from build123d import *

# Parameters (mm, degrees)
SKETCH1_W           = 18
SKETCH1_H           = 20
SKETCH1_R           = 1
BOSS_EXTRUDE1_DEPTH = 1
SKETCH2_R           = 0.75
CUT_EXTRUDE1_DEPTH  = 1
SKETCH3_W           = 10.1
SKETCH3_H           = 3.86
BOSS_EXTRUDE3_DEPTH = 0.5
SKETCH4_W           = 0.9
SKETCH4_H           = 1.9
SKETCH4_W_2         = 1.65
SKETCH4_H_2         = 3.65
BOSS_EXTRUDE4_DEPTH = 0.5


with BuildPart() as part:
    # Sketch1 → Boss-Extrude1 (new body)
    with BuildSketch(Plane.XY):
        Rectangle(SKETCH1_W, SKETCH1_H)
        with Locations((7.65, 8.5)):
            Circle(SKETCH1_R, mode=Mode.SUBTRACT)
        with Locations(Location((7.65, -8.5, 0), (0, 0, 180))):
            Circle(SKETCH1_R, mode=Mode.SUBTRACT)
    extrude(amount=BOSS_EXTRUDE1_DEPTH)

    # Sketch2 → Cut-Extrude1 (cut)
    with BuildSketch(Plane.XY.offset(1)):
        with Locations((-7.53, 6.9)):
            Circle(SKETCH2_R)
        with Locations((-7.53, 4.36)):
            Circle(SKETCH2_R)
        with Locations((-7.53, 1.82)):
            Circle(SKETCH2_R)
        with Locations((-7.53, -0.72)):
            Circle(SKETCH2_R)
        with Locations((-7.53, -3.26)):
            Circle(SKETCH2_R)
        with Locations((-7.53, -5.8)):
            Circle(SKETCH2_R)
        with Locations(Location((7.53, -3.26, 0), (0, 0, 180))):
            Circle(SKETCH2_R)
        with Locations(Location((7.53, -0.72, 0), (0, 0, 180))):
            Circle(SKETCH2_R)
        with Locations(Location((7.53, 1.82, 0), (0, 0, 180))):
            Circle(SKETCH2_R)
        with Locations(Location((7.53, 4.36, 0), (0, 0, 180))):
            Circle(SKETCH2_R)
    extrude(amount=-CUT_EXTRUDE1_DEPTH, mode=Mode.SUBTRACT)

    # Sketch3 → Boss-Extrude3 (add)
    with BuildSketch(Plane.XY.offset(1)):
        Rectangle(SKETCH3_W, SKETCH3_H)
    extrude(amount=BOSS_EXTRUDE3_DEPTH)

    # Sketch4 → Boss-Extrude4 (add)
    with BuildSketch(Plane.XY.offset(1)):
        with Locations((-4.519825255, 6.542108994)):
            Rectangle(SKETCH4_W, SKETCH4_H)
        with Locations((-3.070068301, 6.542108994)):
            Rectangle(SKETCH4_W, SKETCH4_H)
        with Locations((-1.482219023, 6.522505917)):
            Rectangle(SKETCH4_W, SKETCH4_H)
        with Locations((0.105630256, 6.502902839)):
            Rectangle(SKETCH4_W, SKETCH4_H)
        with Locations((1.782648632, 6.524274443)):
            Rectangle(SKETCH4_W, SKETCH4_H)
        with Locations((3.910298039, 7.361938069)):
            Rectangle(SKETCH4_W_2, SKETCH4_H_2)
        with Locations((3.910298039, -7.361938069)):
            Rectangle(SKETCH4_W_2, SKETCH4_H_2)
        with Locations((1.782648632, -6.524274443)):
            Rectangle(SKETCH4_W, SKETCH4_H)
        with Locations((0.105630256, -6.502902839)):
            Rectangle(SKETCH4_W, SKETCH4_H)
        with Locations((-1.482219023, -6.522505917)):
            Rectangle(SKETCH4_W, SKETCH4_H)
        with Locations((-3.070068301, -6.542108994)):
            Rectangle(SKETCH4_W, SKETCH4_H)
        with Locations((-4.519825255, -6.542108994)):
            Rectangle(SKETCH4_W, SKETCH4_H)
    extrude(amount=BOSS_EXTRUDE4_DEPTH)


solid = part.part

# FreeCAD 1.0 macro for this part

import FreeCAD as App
import Part
import Sketcher

doc = App.newDocument("Part")
body = doc.addObject("PartDesign::Body", "Body")

# Sketch on XY plane
sketch1 = body.newObject("Sketcher::SketchObject", "Sketch")
sketch1.AttachmentSupport = (doc.getObject("XY_Plane"), [""])
sketch1.MapMode = "FlatFace"
sketch1.addGeometry(Part.LineSegment(App.Vector(-9, 10, 0), App.Vector(-9, -10, 0)), False)
sketch1.addGeometry(Part.LineSegment(App.Vector(-9, -10, 0), App.Vector(9, -10, 0)), False)
sketch1.addGeometry(Part.LineSegment(App.Vector(9, -10, 0), App.Vector(9, 10, 0)), False)
sketch1.addGeometry(Part.LineSegment(App.Vector(9, 10, 0), App.Vector(-9, 10, 0)), False)
sketch1.addGeometry(Part.Circle(App.Vector(7.7, -8.5, 0), App.Vector(0, 0, 1), 1), False)
sketch1.addGeometry(Part.Circle(App.Vector(7.7, 8.5, 0), App.Vector(0, 0, 1), 1), False)
sketch1.addConstraint(Sketcher.Constraint("Coincident", 0, 2, 1, 1))
sketch1.addConstraint(Sketcher.Constraint("Coincident", 1, 2, 2, 1))
sketch1.addConstraint(Sketcher.Constraint("Coincident", 2, 2, 3, 1))
sketch1.addConstraint(Sketcher.Constraint("Coincident", 3, 2, 0, 1))
sketch1.addConstraint(Sketcher.Constraint("Vertical", 0))
sketch1.addConstraint(Sketcher.Constraint("Horizontal", 1))
sketch1.addConstraint(Sketcher.Constraint("Vertical", 2))
sketch1.addConstraint(Sketcher.Constraint("Horizontal", 3))
sketch1.addConstraint(Sketcher.Constraint("Equal", 4, 5))
sketch1.addConstraint(Sketcher.Constraint("Symmetric", 0, 2, 2, 2, -1, 1))
sketch1.addConstraint(Sketcher.Constraint("Symmetric", 4, 3, 5, 3, -1))
sketch1.addConstraint(Sketcher.Constraint("Diameter", 4, 2.0))
sketch1.addConstraint(Sketcher.Constraint("DistanceX", 1, 1, 1, 2, 18.0))
sketch1.addConstraint(Sketcher.Constraint("DistanceY", 0, 2, 0, 1, 20.0))
sketch1.addConstraint(Sketcher.Constraint("DistanceY", 4, 3, 5, 3, 17.0))
sketch1.addConstraint(Sketcher.Constraint("DistanceX", -1, 1, 4, 3, 7.65))
pad1 = body.newObject("PartDesign::Pad", "Pad")
pad1.Profile = sketch1
pad1.Length = 1

# Sketch on XY plane
sketch2 = body.newObject("Sketcher::SketchObject", "Sketch001")
sketch2.AttachmentSupport = (doc.getObject("XY_Plane"), [""])
sketch2.MapMode = "FlatFace"
sketch2.AttachmentOffset = App.Placement(App.Vector(0, 0, 1), App.Rotation())
sketch2.addGeometry(Part.Circle(App.Vector(-7.5, 6.9, 0), App.Vector(0, 0, 1), 0.8), False)
sketch2.addGeometry(Part.Circle(App.Vector(-7.5, 4.4, 0), App.Vector(0, 0, 1), 0.8), False)
sketch2.addGeometry(Part.Circle(App.Vector(-7.5, 1.8, 0), App.Vector(0, 0, 1), 0.8), False)
sketch2.addGeometry(Part.Circle(App.Vector(-7.5, -0.7, 0), App.Vector(0, 0, 1), 0.8), False)
sketch2.addGeometry(Part.Circle(App.Vector(-7.5, -3.3, 0), App.Vector(0, 0, 1), 0.8), False)
sketch2.addGeometry(Part.Circle(App.Vector(-7.5, -5.8, 0), App.Vector(0, 0, 1), 0.8), False)
sketch2.addGeometry(Part.Circle(App.Vector(7.5, -3.3, 0), App.Vector(0, 0, 1), 0.8), False)
sketch2.addGeometry(Part.Circle(App.Vector(7.5, -0.7, 0), App.Vector(0, 0, 1), 0.8), False)
sketch2.addGeometry(Part.Circle(App.Vector(7.5, 1.8, 0), App.Vector(0, 0, 1), 0.8), False)
sketch2.addGeometry(Part.Circle(App.Vector(7.5, 4.4, 0), App.Vector(0, 0, 1), 0.8), False)
sketch2.addConstraint(Sketcher.Constraint("Equal", 0, 1))
sketch2.addConstraint(Sketcher.Constraint("Equal", 1, 2))
sketch2.addConstraint(Sketcher.Constraint("Equal", 2, 3))
sketch2.addConstraint(Sketcher.Constraint("Equal", 3, 4))
sketch2.addConstraint(Sketcher.Constraint("Equal", 4, 5))
sketch2.addConstraint(Sketcher.Constraint("Equal", 5, 6))
sketch2.addConstraint(Sketcher.Constraint("Equal", 6, 7))
sketch2.addConstraint(Sketcher.Constraint("Equal", 7, 8))
sketch2.addConstraint(Sketcher.Constraint("Equal", 8, 9))
sketch2.addConstraint(Sketcher.Constraint("Symmetric", 4, 3, 6, 3, -2))
sketch2.addConstraint(Sketcher.Constraint("Symmetric", 3, 3, 7, 3, -2))
sketch2.addConstraint(Sketcher.Constraint("Symmetric", 2, 3, 8, 3, -2))
sketch2.addConstraint(Sketcher.Constraint("Symmetric", 1, 3, 9, 3, -2))
sketch2.addConstraint(Sketcher.Constraint("Vertical", 0, 3, 1, 3))
sketch2.addConstraint(Sketcher.Constraint("Vertical", 1, 3, 2, 3))
sketch2.addConstraint(Sketcher.Constraint("Vertical", 2, 3, 3, 3))
sketch2.addConstraint(Sketcher.Constraint("Vertical", 3, 3, 4, 3))
sketch2.addConstraint(Sketcher.Constraint("Vertical", 4, 3, 5, 3))
sketch2.addConstraint(Sketcher.Constraint("Diameter", 0, 1.5))
sketch2.addConstraint(Sketcher.Constraint("DistanceY", -1, 1, 0, 3, 6.9))
sketch2.addConstraint(Sketcher.Constraint("DistanceY", 5, 3, -1, 1, 5.8))
sketch2.addConstraint(Sketcher.Constraint("DistanceX", 0, 3, -1, 1, 7.53))
sketch2.addConstraint(Sketcher.Constraint("DistanceY", -1, 1, 1, 3, 4.36))
sketch2.addConstraint(Sketcher.Constraint("DistanceY", -1, 1, 2, 3, 1.82))
sketch2.addConstraint(Sketcher.Constraint("DistanceY", 3, 3, -1, 1, 0.72))
sketch2.addConstraint(Sketcher.Constraint("DistanceY", 4, 3, -1, 1, 3.26))
pocket1 = body.newObject("PartDesign::Pocket", "Pocket")
pocket1.Profile = sketch2
pocket1.Length = 1

# Sketch on XY plane
sketch3 = body.newObject("Sketcher::SketchObject", "Sketch002")
sketch3.AttachmentSupport = (doc.getObject("XY_Plane"), [""])
sketch3.MapMode = "FlatFace"
sketch3.AttachmentOffset = App.Placement(App.Vector(0, 0, 1), App.Rotation())
sketch3.addGeometry(Part.LineSegment(App.Vector(-5, 1.9, 0), App.Vector(-5, -1.9, 0)), False)
sketch3.addGeometry(Part.LineSegment(App.Vector(-5, -1.9, 0), App.Vector(5, -1.9, 0)), False)
sketch3.addGeometry(Part.LineSegment(App.Vector(5, -1.9, 0), App.Vector(5, 1.9, 0)), False)
sketch3.addGeometry(Part.LineSegment(App.Vector(5, 1.9, 0), App.Vector(-5, 1.9, 0)), False)
sketch3.addConstraint(Sketcher.Constraint("Coincident", 0, 2, 1, 1))
sketch3.addConstraint(Sketcher.Constraint("Coincident", 1, 2, 2, 1))
sketch3.addConstraint(Sketcher.Constraint("Coincident", 2, 2, 3, 1))
sketch3.addConstraint(Sketcher.Constraint("Coincident", 3, 2, 0, 1))
sketch3.addConstraint(Sketcher.Constraint("Vertical", 0))
sketch3.addConstraint(Sketcher.Constraint("Horizontal", 1))
sketch3.addConstraint(Sketcher.Constraint("Vertical", 2))
sketch3.addConstraint(Sketcher.Constraint("Horizontal", 3))
sketch3.addConstraint(Sketcher.Constraint("Symmetric", 0, 2, 2, 2, -1, 1))
sketch3.addConstraint(Sketcher.Constraint("DistanceX", 1, 1, 1, 2, 10.1))
sketch3.addConstraint(Sketcher.Constraint("DistanceY", 0, 2, 0, 1, 3.86))
pad2 = body.newObject("PartDesign::Pad", "Pad001")
pad2.Profile = sketch3
pad2.Length = 0.5

# Sketch on XY plane
sketch4 = body.newObject("Sketcher::SketchObject", "Sketch003")
sketch4.AttachmentSupport = (doc.getObject("XY_Plane"), [""])
sketch4.MapMode = "FlatFace"
sketch4.AttachmentOffset = App.Placement(App.Vector(0, 0, 1), App.Rotation())
sketch4.addGeometry(Part.LineSegment(App.Vector(-5, 7.5, 0), App.Vector(-5, 5.6, 0)), False)
sketch4.addGeometry(Part.LineSegment(App.Vector(-5, 5.6, 0), App.Vector(-4.1, 5.6, 0)), False)
sketch4.addGeometry(Part.LineSegment(App.Vector(-4.1, 5.6, 0), App.Vector(-4.1, 7.5, 0)), False)
sketch4.addGeometry(Part.LineSegment(App.Vector(-4.1, 7.5, 0), App.Vector(-5, 7.5, 0)), False)
sketch4.addGeometry(Part.LineSegment(App.Vector(-3.5, 7.5, 0), App.Vector(-3.5, 5.6, 0)), False)
sketch4.addGeometry(Part.LineSegment(App.Vector(-3.5, 5.6, 0), App.Vector(-2.6, 5.6, 0)), False)
sketch4.addGeometry(Part.LineSegment(App.Vector(-2.6, 5.6, 0), App.Vector(-2.6, 7.5, 0)), False)
sketch4.addGeometry(Part.LineSegment(App.Vector(-2.6, 7.5, 0), App.Vector(-3.5, 7.5, 0)), False)
sketch4.addGeometry(Part.LineSegment(App.Vector(-1.9, 7.5, 0), App.Vector(-1.9, 5.6, 0)), False)
sketch4.addGeometry(Part.LineSegment(App.Vector(-1.9, 5.6, 0), App.Vector(-1, 5.6, 0)), False)
sketch4.addGeometry(Part.LineSegment(App.Vector(-1, 5.6, 0), App.Vector(-1, 7.5, 0)), False)
sketch4.addGeometry(Part.LineSegment(App.Vector(-1, 7.5, 0), App.Vector(-1.9, 7.5, 0)), False)
sketch4.addGeometry(Part.LineSegment(App.Vector(-0.3, 7.5, 0), App.Vector(-0.3, 5.6, 0)), False)
sketch4.addGeometry(Part.LineSegment(App.Vector(-0.3, 5.6, 0), App.Vector(0.6, 5.6, 0)), False)
sketch4.addGeometry(Part.LineSegment(App.Vector(0.6, 5.6, 0), App.Vector(0.6, 7.5, 0)), False)
sketch4.addGeometry(Part.LineSegment(App.Vector(0.6, 7.5, 0), App.Vector(-0.3, 7.5, 0)), False)
sketch4.addGeometry(Part.LineSegment(App.Vector(1.3, 7.5, 0), App.Vector(1.3, 5.6, 0)), False)
sketch4.addGeometry(Part.LineSegment(App.Vector(1.3, 5.6, 0), App.Vector(2.2, 5.6, 0)), False)
sketch4.addGeometry(Part.LineSegment(App.Vector(2.2, 5.6, 0), App.Vector(2.2, 7.5, 0)), False)
sketch4.addGeometry(Part.LineSegment(App.Vector(2.2, 7.5, 0), App.Vector(1.3, 7.5, 0)), False)
sketch4.addGeometry(Part.LineSegment(App.Vector(3.1, 9.2, 0), App.Vector(3.1, 5.5, 0)), False)
sketch4.addGeometry(Part.LineSegment(App.Vector(3.1, 5.5, 0), App.Vector(4.7, 5.5, 0)), False)
sketch4.addGeometry(Part.LineSegment(App.Vector(4.7, 5.5, 0), App.Vector(4.7, 9.2, 0)), False)
sketch4.addGeometry(Part.LineSegment(App.Vector(4.7, 9.2, 0), App.Vector(3.1, 9.2, 0)), False)
sketch4.addGeometry(Part.LineSegment(App.Vector(3.1, -5.5, 0), App.Vector(3.1, -9.2, 0)), False)
sketch4.addGeometry(Part.LineSegment(App.Vector(3.1, -9.2, 0), App.Vector(4.7, -9.2, 0)), False)
sketch4.addGeometry(Part.LineSegment(App.Vector(4.7, -9.2, 0), App.Vector(4.7, -5.5, 0)), False)
sketch4.addGeometry(Part.LineSegment(App.Vector(4.7, -5.5, 0), App.Vector(3.1, -5.5, 0)), False)
sketch4.addGeometry(Part.LineSegment(App.Vector(1.3, -5.6, 0), App.Vector(1.3, -7.5, 0)), False)
sketch4.addGeometry(Part.LineSegment(App.Vector(1.3, -7.5, 0), App.Vector(2.2, -7.5, 0)), False)
sketch4.addGeometry(Part.LineSegment(App.Vector(2.2, -7.5, 0), App.Vector(2.2, -5.6, 0)), False)
sketch4.addGeometry(Part.LineSegment(App.Vector(2.2, -5.6, 0), App.Vector(1.3, -5.6, 0)), False)
sketch4.addGeometry(Part.LineSegment(App.Vector(-0.3, -5.6, 0), App.Vector(-0.3, -7.5, 0)), False)
sketch4.addGeometry(Part.LineSegment(App.Vector(-0.3, -7.5, 0), App.Vector(0.6, -7.5, 0)), False)
sketch4.addGeometry(Part.LineSegment(App.Vector(0.6, -7.5, 0), App.Vector(0.6, -5.6, 0)), False)
sketch4.addGeometry(Part.LineSegment(App.Vector(0.6, -5.6, 0), App.Vector(-0.3, -5.6, 0)), False)
sketch4.addGeometry(Part.LineSegment(App.Vector(-1.9, -5.6, 0), App.Vector(-1.9, -7.5, 0)), False)
sketch4.addGeometry(Part.LineSegment(App.Vector(-1.9, -7.5, 0), App.Vector(-1, -7.5, 0)), False)
sketch4.addGeometry(Part.LineSegment(App.Vector(-1, -7.5, 0), App.Vector(-1, -5.6, 0)), False)
sketch4.addGeometry(Part.LineSegment(App.Vector(-1, -5.6, 0), App.Vector(-1.9, -5.6, 0)), False)
sketch4.addGeometry(Part.LineSegment(App.Vector(-3.5, -5.6, 0), App.Vector(-3.5, -7.5, 0)), False)
sketch4.addGeometry(Part.LineSegment(App.Vector(-3.5, -7.5, 0), App.Vector(-2.6, -7.5, 0)), False)
sketch4.addGeometry(Part.LineSegment(App.Vector(-2.6, -7.5, 0), App.Vector(-2.6, -5.6, 0)), False)
sketch4.addGeometry(Part.LineSegment(App.Vector(-2.6, -5.6, 0), App.Vector(-3.5, -5.6, 0)), False)
sketch4.addGeometry(Part.LineSegment(App.Vector(-5, -5.6, 0), App.Vector(-5, -7.5, 0)), False)
sketch4.addGeometry(Part.LineSegment(App.Vector(-5, -7.5, 0), App.Vector(-4.1, -7.5, 0)), False)
sketch4.addGeometry(Part.LineSegment(App.Vector(-4.1, -7.5, 0), App.Vector(-4.1, -5.6, 0)), False)
sketch4.addGeometry(Part.LineSegment(App.Vector(-4.1, -5.6, 0), App.Vector(-5, -5.6, 0)), False)
sketch4.addConstraint(Sketcher.Constraint("Coincident", 0, 2, 1, 1))
sketch4.addConstraint(Sketcher.Constraint("Coincident", 1, 2, 2, 1))
sketch4.addConstraint(Sketcher.Constraint("Coincident", 2, 2, 3, 1))
sketch4.addConstraint(Sketcher.Constraint("Coincident", 3, 2, 0, 1))
sketch4.addConstraint(Sketcher.Constraint("Coincident", 4, 2, 5, 1))
sketch4.addConstraint(Sketcher.Constraint("Coincident", 5, 2, 6, 1))
sketch4.addConstraint(Sketcher.Constraint("Coincident", 6, 2, 7, 1))
sketch4.addConstraint(Sketcher.Constraint("Coincident", 7, 2, 4, 1))
sketch4.addConstraint(Sketcher.Constraint("Coincident", 8, 2, 9, 1))
sketch4.addConstraint(Sketcher.Constraint("Coincident", 9, 2, 10, 1))
sketch4.addConstraint(Sketcher.Constraint("Coincident", 10, 2, 11, 1))
sketch4.addConstraint(Sketcher.Constraint("Coincident", 11, 2, 8, 1))
sketch4.addConstraint(Sketcher.Constraint("Coincident", 12, 2, 13, 1))
sketch4.addConstraint(Sketcher.Constraint("Coincident", 13, 2, 14, 1))
sketch4.addConstraint(Sketcher.Constraint("Coincident", 14, 2, 15, 1))
sketch4.addConstraint(Sketcher.Constraint("Coincident", 15, 2, 12, 1))
sketch4.addConstraint(Sketcher.Constraint("Coincident", 16, 2, 17, 1))
sketch4.addConstraint(Sketcher.Constraint("Coincident", 17, 2, 18, 1))
sketch4.addConstraint(Sketcher.Constraint("Coincident", 18, 2, 19, 1))
sketch4.addConstraint(Sketcher.Constraint("Coincident", 19, 2, 16, 1))
sketch4.addConstraint(Sketcher.Constraint("Coincident", 20, 2, 21, 1))
sketch4.addConstraint(Sketcher.Constraint("Coincident", 21, 2, 22, 1))
sketch4.addConstraint(Sketcher.Constraint("Coincident", 22, 2, 23, 1))
sketch4.addConstraint(Sketcher.Constraint("Coincident", 23, 2, 20, 1))
sketch4.addConstraint(Sketcher.Constraint("Coincident", 24, 2, 25, 1))
sketch4.addConstraint(Sketcher.Constraint("Coincident", 25, 2, 26, 1))
sketch4.addConstraint(Sketcher.Constraint("Coincident", 26, 2, 27, 1))
sketch4.addConstraint(Sketcher.Constraint("Coincident", 27, 2, 24, 1))
sketch4.addConstraint(Sketcher.Constraint("Coincident", 28, 2, 29, 1))
sketch4.addConstraint(Sketcher.Constraint("Coincident", 29, 2, 30, 1))
sketch4.addConstraint(Sketcher.Constraint("Coincident", 30, 2, 31, 1))
sketch4.addConstraint(Sketcher.Constraint("Coincident", 31, 2, 28, 1))
sketch4.addConstraint(Sketcher.Constraint("Coincident", 32, 2, 33, 1))
sketch4.addConstraint(Sketcher.Constraint("Coincident", 33, 2, 34, 1))
sketch4.addConstraint(Sketcher.Constraint("Coincident", 34, 2, 35, 1))
sketch4.addConstraint(Sketcher.Constraint("Coincident", 35, 2, 32, 1))
sketch4.addConstraint(Sketcher.Constraint("Coincident", 36, 2, 37, 1))
sketch4.addConstraint(Sketcher.Constraint("Coincident", 37, 2, 38, 1))
sketch4.addConstraint(Sketcher.Constraint("Coincident", 38, 2, 39, 1))
sketch4.addConstraint(Sketcher.Constraint("Coincident", 39, 2, 36, 1))
sketch4.addConstraint(Sketcher.Constraint("Coincident", 40, 2, 41, 1))
sketch4.addConstraint(Sketcher.Constraint("Coincident", 41, 2, 42, 1))
sketch4.addConstraint(Sketcher.Constraint("Coincident", 42, 2, 43, 1))
sketch4.addConstraint(Sketcher.Constraint("Coincident", 43, 2, 40, 1))
sketch4.addConstraint(Sketcher.Constraint("Coincident", 44, 2, 45, 1))
sketch4.addConstraint(Sketcher.Constraint("Coincident", 45, 2, 46, 1))
sketch4.addConstraint(Sketcher.Constraint("Coincident", 46, 2, 47, 1))
sketch4.addConstraint(Sketcher.Constraint("Coincident", 47, 2, 44, 1))
sketch4.addConstraint(Sketcher.Constraint("Vertical", 0))
sketch4.addConstraint(Sketcher.Constraint("Horizontal", 1))
sketch4.addConstraint(Sketcher.Constraint("Vertical", 2))
sketch4.addConstraint(Sketcher.Constraint("Horizontal", 3))
sketch4.addConstraint(Sketcher.Constraint("Vertical", 4))
sketch4.addConstraint(Sketcher.Constraint("Horizontal", 5))
sketch4.addConstraint(Sketcher.Constraint("Vertical", 6))
sketch4.addConstraint(Sketcher.Constraint("Horizontal", 7))
sketch4.addConstraint(Sketcher.Constraint("Vertical", 8))
sketch4.addConstraint(Sketcher.Constraint("Horizontal", 9))
sketch4.addConstraint(Sketcher.Constraint("Vertical", 10))
sketch4.addConstraint(Sketcher.Constraint("Horizontal", 11))
sketch4.addConstraint(Sketcher.Constraint("Vertical", 12))
sketch4.addConstraint(Sketcher.Constraint("Horizontal", 13))
sketch4.addConstraint(Sketcher.Constraint("Vertical", 14))
sketch4.addConstraint(Sketcher.Constraint("Horizontal", 15))
sketch4.addConstraint(Sketcher.Constraint("Vertical", 16))
sketch4.addConstraint(Sketcher.Constraint("Horizontal", 17))
sketch4.addConstraint(Sketcher.Constraint("Vertical", 18))
sketch4.addConstraint(Sketcher.Constraint("Horizontal", 19))
sketch4.addConstraint(Sketcher.Constraint("Vertical", 20))
sketch4.addConstraint(Sketcher.Constraint("Horizontal", 21))
sketch4.addConstraint(Sketcher.Constraint("Vertical", 22))
sketch4.addConstraint(Sketcher.Constraint("Horizontal", 23))
sketch4.addConstraint(Sketcher.Constraint("Vertical", 24))
sketch4.addConstraint(Sketcher.Constraint("Horizontal", 25))
sketch4.addConstraint(Sketcher.Constraint("Vertical", 26))
sketch4.addConstraint(Sketcher.Constraint("Horizontal", 27))
sketch4.addConstraint(Sketcher.Constraint("Vertical", 28))
sketch4.addConstraint(Sketcher.Constraint("Horizontal", 29))
sketch4.addConstraint(Sketcher.Constraint("Vertical", 30))
sketch4.addConstraint(Sketcher.Constraint("Horizontal", 31))
sketch4.addConstraint(Sketcher.Constraint("Vertical", 32))
sketch4.addConstraint(Sketcher.Constraint("Horizontal", 33))
sketch4.addConstraint(Sketcher.Constraint("Vertical", 34))
sketch4.addConstraint(Sketcher.Constraint("Horizontal", 35))
sketch4.addConstraint(Sketcher.Constraint("Vertical", 36))
sketch4.addConstraint(Sketcher.Constraint("Horizontal", 37))
sketch4.addConstraint(Sketcher.Constraint("Vertical", 38))
sketch4.addConstraint(Sketcher.Constraint("Horizontal", 39))
sketch4.addConstraint(Sketcher.Constraint("Vertical", 40))
sketch4.addConstraint(Sketcher.Constraint("Horizontal", 41))
sketch4.addConstraint(Sketcher.Constraint("Vertical", 42))
sketch4.addConstraint(Sketcher.Constraint("Horizontal", 43))
sketch4.addConstraint(Sketcher.Constraint("Vertical", 44))
sketch4.addConstraint(Sketcher.Constraint("Horizontal", 45))
sketch4.addConstraint(Sketcher.Constraint("Vertical", 46))
sketch4.addConstraint(Sketcher.Constraint("Horizontal", 47))
sketch4.addConstraint(Sketcher.Constraint("Symmetric", 23, 2, 24, 2, -1))
sketch4.addConstraint(Sketcher.Constraint("Symmetric", 21, 2, 26, 2, -1))
sketch4.addConstraint(Sketcher.Constraint("Symmetric", 19, 2, 28, 2, -1))
sketch4.addConstraint(Sketcher.Constraint("Symmetric", 17, 2, 30, 2, -1))
sketch4.addConstraint(Sketcher.Constraint("Symmetric", 15, 2, 32, 2, -1))
sketch4.addConstraint(Sketcher.Constraint("Symmetric", 13, 2, 34, 2, -1))
sketch4.addConstraint(Sketcher.Constraint("Symmetric", 11, 2, 36, 2, -1))
sketch4.addConstraint(Sketcher.Constraint("Symmetric", 9, 2, 38, 2, -1))
sketch4.addConstraint(Sketcher.Constraint("Symmetric", 7, 2, 40, 2, -1))
sketch4.addConstraint(Sketcher.Constraint("Symmetric", 5, 2, 42, 2, -1))
sketch4.addConstraint(Sketcher.Constraint("Symmetric", 3, 2, 44, 2, -1))
sketch4.addConstraint(Sketcher.Constraint("Symmetric", 1, 2, 46, 2, -1))
sketch4.addConstraint(Sketcher.Constraint("Horizontal", 1, 2, 4, 2))
sketch4.addConstraint(Sketcher.Constraint("Horizontal", 3, 2, 6, 2))
sketch4.addConstraint(Sketcher.Constraint("Equal", 3, 5))
sketch4.addConstraint(Sketcher.Constraint("Equal", 7, 9))
sketch4.addConstraint(Sketcher.Constraint("Equal", 11, 13))
sketch4.addConstraint(Sketcher.Constraint("Equal", 15, 17))
sketch4.addConstraint(Sketcher.Constraint("Equal", 6, 8))
sketch4.addConstraint(Sketcher.Constraint("Equal", 10, 12))
sketch4.addConstraint(Sketcher.Constraint("Equal", 14, 16))
sketch4.addConstraint(Sketcher.Constraint("DistanceX", 1, 1, 1, 2, 0.9))
sketch4.addConstraint(Sketcher.Constraint("DistanceY", 0, 2, 0, 1, 1.9))
sketch4.addConstraint(Sketcher.Constraint("DistanceX", 21, 1, 21, 2, 1.65))
sketch4.addConstraint(Sketcher.Constraint("DistanceY", 20, 2, 20, 1, 3.65))
sketch4.addConstraint(Sketcher.Constraint("DistanceX", -1, 1, 20, 2, 3.085298))
sketch4.addConstraint(Sketcher.Constraint("DistanceX", 5, 2, 12, 2, 2.275699))
sketch4.addConstraint(Sketcher.Constraint("DistanceY", -1, 1, 0, 2, 5.592109))
sketch4.addConstraint(Sketcher.Constraint("DistanceX", 4, 2, -1, 1, 3.520068))
sketch4.addConstraint(Sketcher.Constraint("DistanceX", 8, 2, -1, 1, 1.932219))
sketch4.addConstraint(Sketcher.Constraint("DistanceX", -1, 1, 16, 2, 1.332649))
sketch4.addConstraint(Sketcher.Constraint("DistanceY", -1, 1, 20, 2, 5.536938))
sketch4.addConstraint(Sketcher.Constraint("DistanceY", 13, 2, 16, 2, 0.021372))
sketch4.addConstraint(Sketcher.Constraint("DistanceY", 9, 2, 16, 2, 0.001769))
sketch4.addConstraint(Sketcher.Constraint("DistanceY", 24, 2, 13, 2, 14.739841))
sketch4.addConstraint(Sketcher.Constraint("DistanceX", 0, 2, -1, 1, 4.969825))
pad3 = body.newObject("PartDesign::Pad", "Pad002")
pad3.Profile = sketch4
pad3.Length = 0.5

doc.recompute()
